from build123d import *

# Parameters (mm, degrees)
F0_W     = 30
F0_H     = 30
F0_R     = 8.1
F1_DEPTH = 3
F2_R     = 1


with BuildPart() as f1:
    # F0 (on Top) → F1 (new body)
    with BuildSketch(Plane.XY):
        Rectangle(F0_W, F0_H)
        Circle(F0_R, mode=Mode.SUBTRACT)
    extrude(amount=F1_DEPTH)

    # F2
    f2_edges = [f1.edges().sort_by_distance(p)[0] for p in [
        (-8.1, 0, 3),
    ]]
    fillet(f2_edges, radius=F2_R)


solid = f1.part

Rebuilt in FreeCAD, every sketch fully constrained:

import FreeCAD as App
import Part
import Sketcher
from FreeCAD import Vector
Q = App.Units.Quantity


def edges_at(feature, points):
    """Names of the edges that pass closest to the given points."""
    edges = feature.Shape.Edges
    near = lambda p: min(range(len(edges)), key=lambda i: edges[i].distToShape(Part.Vertex(*p))[0])
    return sorted({f"Edge{near(p) + 1}" for p in points})

doc = App.newDocument("Part")
body = doc.addObject("PartDesign::Body", "Body")

sketch1 = body.newObject("Sketcher::SketchObject", "Sketch")
sketch1.AttachmentSupport = (doc.getObject("XY_Plane"), [""])
sketch1.MapMode = "FlatFace"
sketch1.addGeometry([
    Part.LineSegment(Vector(-15, 15, 0), Vector(-15, -15, 0)),
    Part.LineSegment(Vector(-15, -15, 0), Vector(15, -15, 0)),
    Part.LineSegment(Vector(15, -15, 0), Vector(15, 15, 0)),
    Part.LineSegment(Vector(15, 15, 0), Vector(-15, 15, 0)),
    Part.Circle(Vector(0, 0, 0), Vector(0, 0, 1), 8),
], False)
sketch1.addConstraint([
    Sketcher.Constraint("Coincident", 0, 2, 1, 1),
    Sketcher.Constraint("Coincident", 1, 2, 2, 1),
    Sketcher.Constraint("Coincident", 2, 2, 3, 1),
    Sketcher.Constraint("Coincident", 3, 2, 0, 1),
    Sketcher.Constraint("Vertical", 0),
    Sketcher.Constraint("Horizontal", 1),
    Sketcher.Constraint("Vertical", 2),
    Sketcher.Constraint("Horizontal", 3),
    Sketcher.Constraint("Coincident", 4, 3, -1, 1),
    Sketcher.Constraint("Symmetric", 0, 2, 2, 2, -1, 1),
    Sketcher.Constraint("Equal", 3, 0),
    Sketcher.Constraint("Diameter", 4, Q("16.2 mm")),
    Sketcher.Constraint("DistanceX", 1, 1, 1, 2, Q("30 mm")),
])
pad1 = body.newObject("PartDesign::Pad", "Pad")
pad1.Profile = sketch1
pad1.Length = 3
doc.recompute()

fillet = body.newObject("PartDesign::Fillet", "Fillet")
fillet.Base = (pad1, edges_at(pad1, [(-8.1, 0, 3)]))
fillet.Radius = 1

doc.recompute()
